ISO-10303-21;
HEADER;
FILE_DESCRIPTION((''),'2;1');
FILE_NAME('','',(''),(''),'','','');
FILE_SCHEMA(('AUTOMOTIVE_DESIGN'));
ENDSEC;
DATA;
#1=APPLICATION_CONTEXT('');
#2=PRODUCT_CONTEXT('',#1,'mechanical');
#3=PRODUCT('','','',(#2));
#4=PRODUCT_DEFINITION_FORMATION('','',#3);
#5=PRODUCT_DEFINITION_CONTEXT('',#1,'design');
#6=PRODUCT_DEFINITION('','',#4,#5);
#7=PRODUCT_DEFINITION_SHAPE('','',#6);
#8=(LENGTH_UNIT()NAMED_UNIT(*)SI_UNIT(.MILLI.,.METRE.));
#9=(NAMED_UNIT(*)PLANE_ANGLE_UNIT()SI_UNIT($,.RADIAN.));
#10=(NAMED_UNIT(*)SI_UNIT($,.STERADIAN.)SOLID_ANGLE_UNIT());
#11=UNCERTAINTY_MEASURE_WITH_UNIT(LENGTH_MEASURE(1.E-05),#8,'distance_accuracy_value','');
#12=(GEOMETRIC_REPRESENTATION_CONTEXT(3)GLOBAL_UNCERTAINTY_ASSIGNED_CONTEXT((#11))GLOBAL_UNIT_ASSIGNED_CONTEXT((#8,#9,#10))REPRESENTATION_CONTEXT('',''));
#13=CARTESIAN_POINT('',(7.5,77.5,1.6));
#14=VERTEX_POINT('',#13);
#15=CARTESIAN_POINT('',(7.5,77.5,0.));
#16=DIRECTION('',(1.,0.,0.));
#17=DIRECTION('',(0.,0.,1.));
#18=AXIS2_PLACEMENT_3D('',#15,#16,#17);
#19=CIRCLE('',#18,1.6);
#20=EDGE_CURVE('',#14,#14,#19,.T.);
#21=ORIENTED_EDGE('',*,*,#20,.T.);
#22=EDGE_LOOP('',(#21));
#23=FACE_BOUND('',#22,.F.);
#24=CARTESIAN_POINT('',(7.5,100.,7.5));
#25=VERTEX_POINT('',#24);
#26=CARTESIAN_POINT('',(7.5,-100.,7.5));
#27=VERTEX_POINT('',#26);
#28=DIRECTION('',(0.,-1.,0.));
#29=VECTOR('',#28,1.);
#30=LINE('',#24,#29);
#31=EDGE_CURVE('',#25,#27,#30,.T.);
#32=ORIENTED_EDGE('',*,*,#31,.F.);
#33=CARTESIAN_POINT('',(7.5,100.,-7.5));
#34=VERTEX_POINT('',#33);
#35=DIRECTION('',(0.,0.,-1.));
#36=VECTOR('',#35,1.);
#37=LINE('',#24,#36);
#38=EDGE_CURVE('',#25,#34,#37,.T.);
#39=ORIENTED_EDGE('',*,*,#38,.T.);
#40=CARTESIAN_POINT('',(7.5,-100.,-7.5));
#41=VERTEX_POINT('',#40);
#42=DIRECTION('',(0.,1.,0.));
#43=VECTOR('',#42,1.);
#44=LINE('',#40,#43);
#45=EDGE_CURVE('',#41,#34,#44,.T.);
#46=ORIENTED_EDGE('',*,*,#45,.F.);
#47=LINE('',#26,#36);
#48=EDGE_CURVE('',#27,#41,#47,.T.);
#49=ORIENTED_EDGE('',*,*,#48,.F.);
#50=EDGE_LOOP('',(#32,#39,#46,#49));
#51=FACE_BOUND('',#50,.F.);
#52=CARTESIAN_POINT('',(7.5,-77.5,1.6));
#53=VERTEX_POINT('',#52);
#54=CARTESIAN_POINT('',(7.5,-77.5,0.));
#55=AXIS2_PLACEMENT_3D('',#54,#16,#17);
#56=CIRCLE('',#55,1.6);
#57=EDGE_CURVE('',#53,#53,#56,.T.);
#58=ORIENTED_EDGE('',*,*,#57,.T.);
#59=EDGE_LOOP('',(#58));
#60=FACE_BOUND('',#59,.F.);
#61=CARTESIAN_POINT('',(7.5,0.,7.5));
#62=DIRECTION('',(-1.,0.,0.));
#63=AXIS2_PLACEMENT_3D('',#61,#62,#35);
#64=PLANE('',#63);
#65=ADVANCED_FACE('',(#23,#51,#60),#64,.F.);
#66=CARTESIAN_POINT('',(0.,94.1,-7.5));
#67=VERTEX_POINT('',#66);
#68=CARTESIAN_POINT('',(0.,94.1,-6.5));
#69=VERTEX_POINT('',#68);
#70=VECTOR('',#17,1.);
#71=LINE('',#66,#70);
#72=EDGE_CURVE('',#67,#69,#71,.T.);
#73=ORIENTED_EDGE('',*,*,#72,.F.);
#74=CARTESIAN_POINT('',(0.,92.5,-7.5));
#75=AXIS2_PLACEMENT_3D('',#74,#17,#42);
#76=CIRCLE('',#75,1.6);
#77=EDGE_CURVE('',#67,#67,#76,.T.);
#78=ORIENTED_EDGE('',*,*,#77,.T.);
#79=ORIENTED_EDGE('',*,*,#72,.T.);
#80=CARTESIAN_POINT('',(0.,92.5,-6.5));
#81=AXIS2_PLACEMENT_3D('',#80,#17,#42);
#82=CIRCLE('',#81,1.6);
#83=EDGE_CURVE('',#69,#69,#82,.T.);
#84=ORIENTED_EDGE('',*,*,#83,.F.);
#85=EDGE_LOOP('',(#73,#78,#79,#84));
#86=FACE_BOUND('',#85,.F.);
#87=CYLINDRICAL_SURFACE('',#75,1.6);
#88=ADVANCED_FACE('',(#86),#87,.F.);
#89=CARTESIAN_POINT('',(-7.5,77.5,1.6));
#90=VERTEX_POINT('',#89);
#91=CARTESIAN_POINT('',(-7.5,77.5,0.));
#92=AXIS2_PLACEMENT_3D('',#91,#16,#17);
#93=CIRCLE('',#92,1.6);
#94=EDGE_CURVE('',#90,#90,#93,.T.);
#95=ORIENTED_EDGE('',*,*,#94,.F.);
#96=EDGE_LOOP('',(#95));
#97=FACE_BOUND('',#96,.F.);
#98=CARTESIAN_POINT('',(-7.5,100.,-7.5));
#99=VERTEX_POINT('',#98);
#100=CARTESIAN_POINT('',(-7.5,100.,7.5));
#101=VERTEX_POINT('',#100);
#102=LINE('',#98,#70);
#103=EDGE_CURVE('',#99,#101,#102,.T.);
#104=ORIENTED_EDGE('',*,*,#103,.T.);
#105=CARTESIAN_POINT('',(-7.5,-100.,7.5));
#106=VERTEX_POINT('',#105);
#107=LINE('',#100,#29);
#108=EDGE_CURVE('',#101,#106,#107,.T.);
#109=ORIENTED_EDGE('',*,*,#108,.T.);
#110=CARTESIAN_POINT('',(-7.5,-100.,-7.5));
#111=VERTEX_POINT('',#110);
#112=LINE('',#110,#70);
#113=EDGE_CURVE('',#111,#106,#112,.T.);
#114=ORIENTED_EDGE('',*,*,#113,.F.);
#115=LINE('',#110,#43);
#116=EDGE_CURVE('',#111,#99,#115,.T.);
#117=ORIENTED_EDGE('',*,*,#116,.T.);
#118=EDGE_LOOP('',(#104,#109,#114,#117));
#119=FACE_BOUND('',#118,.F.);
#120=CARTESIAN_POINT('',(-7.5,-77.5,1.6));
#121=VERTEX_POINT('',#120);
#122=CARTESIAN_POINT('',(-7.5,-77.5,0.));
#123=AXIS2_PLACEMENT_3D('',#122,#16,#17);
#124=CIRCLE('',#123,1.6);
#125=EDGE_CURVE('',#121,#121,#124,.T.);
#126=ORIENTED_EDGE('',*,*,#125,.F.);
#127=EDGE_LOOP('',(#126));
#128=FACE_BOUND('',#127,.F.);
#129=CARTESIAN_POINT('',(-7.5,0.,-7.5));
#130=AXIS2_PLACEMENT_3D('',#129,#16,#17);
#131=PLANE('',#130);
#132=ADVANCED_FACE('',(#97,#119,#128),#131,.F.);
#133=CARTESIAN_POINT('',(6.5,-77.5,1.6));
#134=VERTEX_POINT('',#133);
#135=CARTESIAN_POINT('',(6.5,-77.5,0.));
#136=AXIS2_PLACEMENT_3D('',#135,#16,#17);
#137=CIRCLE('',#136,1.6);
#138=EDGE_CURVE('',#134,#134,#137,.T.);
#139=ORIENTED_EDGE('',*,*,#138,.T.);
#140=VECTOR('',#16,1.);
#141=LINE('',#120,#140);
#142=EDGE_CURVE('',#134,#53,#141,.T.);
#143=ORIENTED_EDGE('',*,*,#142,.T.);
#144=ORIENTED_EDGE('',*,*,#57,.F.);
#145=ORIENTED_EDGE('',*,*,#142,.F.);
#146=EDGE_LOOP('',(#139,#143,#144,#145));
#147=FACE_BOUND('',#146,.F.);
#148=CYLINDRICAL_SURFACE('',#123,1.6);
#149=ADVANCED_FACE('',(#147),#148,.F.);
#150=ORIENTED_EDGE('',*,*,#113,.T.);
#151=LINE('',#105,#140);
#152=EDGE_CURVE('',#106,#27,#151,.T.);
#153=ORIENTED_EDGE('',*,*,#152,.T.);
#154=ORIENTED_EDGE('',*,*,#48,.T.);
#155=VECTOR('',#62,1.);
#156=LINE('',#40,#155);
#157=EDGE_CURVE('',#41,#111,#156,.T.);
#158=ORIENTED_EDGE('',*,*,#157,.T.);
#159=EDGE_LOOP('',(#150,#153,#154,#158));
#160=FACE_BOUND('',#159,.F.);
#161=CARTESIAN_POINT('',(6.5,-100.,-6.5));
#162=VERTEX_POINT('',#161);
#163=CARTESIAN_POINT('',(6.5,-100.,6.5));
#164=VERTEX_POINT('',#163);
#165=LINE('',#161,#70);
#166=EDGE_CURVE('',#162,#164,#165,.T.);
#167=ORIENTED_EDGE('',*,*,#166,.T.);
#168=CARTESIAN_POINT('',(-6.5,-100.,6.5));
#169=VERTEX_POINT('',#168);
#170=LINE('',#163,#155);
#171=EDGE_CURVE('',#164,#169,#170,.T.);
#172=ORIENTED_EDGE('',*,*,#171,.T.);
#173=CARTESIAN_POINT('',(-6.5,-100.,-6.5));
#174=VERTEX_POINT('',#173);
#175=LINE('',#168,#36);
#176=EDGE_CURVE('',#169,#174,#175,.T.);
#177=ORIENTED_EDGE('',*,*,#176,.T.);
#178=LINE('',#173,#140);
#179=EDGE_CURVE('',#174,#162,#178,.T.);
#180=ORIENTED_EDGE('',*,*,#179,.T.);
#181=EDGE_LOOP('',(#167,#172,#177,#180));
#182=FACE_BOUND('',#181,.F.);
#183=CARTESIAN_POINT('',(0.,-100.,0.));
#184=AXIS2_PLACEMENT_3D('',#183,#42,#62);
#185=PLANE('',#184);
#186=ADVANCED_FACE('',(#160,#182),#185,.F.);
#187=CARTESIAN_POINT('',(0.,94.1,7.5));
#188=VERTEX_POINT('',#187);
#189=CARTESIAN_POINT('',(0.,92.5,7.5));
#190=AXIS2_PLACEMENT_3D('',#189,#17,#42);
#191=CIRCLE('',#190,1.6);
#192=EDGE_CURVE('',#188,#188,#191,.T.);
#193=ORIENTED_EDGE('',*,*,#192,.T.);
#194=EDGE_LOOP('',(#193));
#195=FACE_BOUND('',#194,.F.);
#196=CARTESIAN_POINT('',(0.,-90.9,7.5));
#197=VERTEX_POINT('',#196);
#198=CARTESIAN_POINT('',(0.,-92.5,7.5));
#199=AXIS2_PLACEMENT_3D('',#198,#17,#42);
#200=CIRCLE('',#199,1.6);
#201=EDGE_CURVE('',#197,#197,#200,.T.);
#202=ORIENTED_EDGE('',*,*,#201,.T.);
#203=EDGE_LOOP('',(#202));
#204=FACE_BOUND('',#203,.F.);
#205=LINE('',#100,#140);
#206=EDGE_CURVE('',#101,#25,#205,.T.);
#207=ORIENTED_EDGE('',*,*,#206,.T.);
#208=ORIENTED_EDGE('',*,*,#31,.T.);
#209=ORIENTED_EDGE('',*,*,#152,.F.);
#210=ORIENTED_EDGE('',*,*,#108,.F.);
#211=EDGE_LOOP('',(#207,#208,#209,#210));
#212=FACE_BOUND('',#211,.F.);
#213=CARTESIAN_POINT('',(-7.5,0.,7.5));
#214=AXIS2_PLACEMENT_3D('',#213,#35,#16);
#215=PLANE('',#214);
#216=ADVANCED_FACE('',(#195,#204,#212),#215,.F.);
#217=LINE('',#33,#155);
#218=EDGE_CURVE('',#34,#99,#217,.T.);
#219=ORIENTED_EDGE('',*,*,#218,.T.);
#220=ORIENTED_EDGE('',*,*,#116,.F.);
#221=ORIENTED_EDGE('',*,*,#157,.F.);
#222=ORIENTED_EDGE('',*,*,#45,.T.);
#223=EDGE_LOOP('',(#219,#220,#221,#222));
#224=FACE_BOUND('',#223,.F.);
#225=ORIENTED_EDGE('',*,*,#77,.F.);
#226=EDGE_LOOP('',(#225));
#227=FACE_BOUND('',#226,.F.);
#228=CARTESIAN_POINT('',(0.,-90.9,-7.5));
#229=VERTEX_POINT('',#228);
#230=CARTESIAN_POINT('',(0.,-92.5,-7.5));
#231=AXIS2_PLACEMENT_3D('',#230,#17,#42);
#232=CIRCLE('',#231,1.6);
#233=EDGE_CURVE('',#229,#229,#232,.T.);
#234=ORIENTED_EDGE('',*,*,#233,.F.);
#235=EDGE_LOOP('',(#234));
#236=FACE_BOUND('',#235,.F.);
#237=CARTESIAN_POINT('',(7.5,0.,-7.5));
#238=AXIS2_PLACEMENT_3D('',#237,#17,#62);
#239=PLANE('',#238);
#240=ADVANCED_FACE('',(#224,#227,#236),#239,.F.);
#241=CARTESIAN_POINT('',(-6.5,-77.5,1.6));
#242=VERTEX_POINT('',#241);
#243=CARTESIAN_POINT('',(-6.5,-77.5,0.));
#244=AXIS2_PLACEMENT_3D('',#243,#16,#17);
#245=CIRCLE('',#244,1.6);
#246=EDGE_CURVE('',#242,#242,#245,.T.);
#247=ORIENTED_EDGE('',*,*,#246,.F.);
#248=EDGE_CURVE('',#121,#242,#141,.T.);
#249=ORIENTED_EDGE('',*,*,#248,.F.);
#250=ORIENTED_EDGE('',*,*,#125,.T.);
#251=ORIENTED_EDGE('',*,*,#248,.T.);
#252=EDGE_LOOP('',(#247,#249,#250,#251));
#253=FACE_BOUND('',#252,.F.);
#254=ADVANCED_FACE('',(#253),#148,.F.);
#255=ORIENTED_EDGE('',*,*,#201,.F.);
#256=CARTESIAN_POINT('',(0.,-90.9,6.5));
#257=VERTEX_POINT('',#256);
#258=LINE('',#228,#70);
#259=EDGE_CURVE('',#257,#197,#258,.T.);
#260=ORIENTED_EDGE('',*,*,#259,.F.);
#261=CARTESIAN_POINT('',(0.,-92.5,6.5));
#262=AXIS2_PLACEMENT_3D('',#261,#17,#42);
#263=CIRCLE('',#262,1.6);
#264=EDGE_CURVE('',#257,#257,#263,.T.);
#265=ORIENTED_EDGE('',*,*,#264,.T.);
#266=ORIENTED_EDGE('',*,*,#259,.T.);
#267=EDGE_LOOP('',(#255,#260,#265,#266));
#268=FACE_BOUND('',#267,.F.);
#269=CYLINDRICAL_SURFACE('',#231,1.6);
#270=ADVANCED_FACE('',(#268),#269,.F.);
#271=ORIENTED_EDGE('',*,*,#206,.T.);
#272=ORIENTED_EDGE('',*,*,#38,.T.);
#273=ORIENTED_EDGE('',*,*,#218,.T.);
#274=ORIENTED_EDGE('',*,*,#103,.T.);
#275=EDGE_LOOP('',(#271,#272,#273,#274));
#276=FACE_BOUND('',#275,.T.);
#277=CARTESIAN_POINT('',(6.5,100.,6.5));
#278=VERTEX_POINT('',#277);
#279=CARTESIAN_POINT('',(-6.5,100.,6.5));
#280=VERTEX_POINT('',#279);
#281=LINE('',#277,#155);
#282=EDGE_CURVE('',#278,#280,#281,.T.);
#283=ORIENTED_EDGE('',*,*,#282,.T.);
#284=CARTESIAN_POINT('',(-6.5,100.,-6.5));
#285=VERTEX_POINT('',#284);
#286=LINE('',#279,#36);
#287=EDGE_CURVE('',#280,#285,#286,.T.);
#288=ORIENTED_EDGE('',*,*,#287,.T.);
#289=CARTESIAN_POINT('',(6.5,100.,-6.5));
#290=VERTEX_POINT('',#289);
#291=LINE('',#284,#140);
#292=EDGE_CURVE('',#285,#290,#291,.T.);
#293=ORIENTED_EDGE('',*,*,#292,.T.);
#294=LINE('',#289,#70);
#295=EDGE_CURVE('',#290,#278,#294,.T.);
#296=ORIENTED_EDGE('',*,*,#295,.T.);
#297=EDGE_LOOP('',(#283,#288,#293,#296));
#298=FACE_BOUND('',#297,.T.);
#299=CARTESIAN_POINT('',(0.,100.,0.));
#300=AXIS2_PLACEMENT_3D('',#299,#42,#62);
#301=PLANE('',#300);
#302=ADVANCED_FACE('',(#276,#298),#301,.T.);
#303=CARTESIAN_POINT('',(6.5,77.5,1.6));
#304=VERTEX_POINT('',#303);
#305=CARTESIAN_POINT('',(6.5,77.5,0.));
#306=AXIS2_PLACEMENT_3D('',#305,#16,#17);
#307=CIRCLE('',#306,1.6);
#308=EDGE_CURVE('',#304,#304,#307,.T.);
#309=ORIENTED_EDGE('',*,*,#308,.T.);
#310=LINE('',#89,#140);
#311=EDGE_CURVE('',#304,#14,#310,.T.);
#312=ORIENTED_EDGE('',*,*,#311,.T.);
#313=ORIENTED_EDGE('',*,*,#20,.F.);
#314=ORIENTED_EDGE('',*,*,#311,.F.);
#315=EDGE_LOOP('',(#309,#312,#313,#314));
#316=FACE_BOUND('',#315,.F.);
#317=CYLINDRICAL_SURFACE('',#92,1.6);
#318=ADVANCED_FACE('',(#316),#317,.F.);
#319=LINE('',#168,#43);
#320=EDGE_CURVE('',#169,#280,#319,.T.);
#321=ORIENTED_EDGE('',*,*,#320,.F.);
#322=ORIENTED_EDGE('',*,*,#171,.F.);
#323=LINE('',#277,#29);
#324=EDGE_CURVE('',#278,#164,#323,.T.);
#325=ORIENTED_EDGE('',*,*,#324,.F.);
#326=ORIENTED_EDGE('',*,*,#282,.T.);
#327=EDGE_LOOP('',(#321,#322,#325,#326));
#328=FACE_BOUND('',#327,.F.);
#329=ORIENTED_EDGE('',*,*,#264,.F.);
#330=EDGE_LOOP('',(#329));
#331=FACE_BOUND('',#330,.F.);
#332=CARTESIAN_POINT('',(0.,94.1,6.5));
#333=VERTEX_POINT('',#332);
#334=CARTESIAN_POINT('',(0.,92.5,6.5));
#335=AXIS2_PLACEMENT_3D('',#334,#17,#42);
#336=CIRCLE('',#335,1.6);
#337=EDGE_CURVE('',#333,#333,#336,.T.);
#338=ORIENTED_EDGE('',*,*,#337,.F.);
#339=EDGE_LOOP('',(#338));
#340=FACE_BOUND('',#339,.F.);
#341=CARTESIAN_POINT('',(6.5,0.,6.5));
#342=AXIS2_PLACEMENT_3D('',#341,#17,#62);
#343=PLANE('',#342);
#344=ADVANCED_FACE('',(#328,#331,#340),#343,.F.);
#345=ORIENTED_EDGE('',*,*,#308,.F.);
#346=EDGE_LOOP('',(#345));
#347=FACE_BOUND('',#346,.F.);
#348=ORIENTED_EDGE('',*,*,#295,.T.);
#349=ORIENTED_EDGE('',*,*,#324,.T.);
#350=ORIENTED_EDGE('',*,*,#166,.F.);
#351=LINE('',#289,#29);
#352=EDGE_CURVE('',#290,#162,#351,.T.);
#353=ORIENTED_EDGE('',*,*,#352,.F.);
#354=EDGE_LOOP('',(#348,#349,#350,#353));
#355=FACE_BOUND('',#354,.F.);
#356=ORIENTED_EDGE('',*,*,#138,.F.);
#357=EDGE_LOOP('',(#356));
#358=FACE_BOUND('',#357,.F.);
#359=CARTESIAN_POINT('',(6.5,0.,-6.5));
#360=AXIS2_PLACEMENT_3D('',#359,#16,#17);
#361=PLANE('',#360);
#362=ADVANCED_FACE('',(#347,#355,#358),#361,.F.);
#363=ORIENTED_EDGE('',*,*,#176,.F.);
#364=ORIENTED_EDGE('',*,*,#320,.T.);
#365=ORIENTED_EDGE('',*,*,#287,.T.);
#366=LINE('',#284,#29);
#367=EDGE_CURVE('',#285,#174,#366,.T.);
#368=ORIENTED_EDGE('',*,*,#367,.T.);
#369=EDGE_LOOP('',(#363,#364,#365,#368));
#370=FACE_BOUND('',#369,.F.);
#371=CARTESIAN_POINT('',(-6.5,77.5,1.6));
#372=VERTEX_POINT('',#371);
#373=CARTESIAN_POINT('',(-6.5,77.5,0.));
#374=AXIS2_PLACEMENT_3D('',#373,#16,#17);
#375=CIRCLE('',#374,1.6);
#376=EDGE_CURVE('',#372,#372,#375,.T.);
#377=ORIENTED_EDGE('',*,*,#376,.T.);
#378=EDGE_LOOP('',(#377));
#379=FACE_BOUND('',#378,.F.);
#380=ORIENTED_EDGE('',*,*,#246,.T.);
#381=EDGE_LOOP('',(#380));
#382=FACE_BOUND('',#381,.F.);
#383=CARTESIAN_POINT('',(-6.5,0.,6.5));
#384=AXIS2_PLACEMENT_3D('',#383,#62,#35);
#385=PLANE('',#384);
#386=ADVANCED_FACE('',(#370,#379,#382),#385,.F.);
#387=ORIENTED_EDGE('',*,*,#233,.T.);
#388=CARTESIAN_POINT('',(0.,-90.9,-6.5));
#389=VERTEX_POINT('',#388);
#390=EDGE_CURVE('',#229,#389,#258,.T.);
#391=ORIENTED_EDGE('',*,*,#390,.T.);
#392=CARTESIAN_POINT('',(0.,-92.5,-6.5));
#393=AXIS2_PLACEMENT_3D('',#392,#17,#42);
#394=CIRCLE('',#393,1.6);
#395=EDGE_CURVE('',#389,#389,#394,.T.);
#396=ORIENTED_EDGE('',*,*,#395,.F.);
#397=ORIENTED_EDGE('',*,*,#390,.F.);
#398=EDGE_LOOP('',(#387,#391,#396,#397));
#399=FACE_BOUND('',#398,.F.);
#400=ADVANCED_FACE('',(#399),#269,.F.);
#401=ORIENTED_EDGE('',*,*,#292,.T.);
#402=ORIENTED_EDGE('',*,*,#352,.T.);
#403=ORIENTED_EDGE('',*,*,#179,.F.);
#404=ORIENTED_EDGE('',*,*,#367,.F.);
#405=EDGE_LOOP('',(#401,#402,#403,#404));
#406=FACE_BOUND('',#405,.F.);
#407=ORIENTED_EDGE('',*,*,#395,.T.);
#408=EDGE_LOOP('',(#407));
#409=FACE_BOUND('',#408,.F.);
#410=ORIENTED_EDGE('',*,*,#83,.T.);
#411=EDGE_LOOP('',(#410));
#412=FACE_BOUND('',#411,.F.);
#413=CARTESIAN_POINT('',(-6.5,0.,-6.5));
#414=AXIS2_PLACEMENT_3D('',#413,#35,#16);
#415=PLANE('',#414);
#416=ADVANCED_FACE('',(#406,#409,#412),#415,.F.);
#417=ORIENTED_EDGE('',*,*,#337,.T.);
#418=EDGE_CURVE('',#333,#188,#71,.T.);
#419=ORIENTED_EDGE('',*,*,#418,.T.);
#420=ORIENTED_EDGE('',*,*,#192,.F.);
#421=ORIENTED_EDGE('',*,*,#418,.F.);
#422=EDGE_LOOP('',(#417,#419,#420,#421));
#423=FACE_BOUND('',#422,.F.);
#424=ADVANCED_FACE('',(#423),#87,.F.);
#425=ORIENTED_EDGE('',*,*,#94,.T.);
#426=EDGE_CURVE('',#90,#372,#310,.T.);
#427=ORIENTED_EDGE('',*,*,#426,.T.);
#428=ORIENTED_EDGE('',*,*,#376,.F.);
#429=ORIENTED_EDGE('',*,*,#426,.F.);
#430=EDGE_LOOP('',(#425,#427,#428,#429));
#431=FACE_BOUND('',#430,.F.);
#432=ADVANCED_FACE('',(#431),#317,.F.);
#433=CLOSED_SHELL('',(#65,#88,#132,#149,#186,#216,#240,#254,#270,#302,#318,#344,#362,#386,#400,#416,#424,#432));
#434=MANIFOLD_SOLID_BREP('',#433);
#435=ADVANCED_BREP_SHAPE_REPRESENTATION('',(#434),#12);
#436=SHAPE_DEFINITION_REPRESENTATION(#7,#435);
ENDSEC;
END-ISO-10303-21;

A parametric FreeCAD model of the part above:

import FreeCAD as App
import Part
import Sketcher

V = App.Vector


def add_polygon(sketch, points):
    """Adds a closed chain of lines whose ends are joined by coincident constraints."""
    first, n = sketch.GeometryCount, len(points)
    for a, b in zip(points, points[1:] + points[:1]):
        sketch.addGeometry(Part.LineSegment(App.Vector(*a, 0), App.Vector(*b, 0)), False)
    for i in range(n):
        sketch.addConstraint(Sketcher.Constraint("Coincident", first + i, 2, first + (i + 1) % n, 1))

doc = App.newDocument("Part")
body = doc.addObject("PartDesign::Body", "Body")

sketch1 = body.newObject("Sketcher::SketchObject", "Sketch")
sketch1.AttachmentSupport = (doc.getObject("XZ_Plane"), [""])
sketch1.MapMode = "FlatFace"
add_polygon(sketch1, [(7.5, 7.5), (7.5, -7.5), (-7.5, -7.5), (-7.5, 7.5)])
add_polygon(sketch1, [(6.5, 6.5), (-6.5, 6.5), (-6.5, -6.5), (6.5, -6.5)])
sketch1.addConstraint(Sketcher.Constraint("Vertical", 0))
sketch1.addConstraint(Sketcher.Constraint("Horizontal", 1))
sketch1.addConstraint(Sketcher.Constraint("Vertical", 2))
sketch1.addConstraint(Sketcher.Constraint("Horizontal", 3))
sketch1.addConstraint(Sketcher.Constraint("Horizontal", 4))
sketch1.addConstraint(Sketcher.Constraint("Vertical", 5))
sketch1.addConstraint(Sketcher.Constraint("Horizontal", 6))
sketch1.addConstraint(Sketcher.Constraint("Vertical", 7))
sketch1.addConstraint(Sketcher.Constraint("Symmetric", 0, 2, 2, 2, -1, 1))
sketch1.addConstraint(Sketcher.Constraint("Symmetric", 4, 2, 6, 2, -1, 1))
sketch1.addConstraint(Sketcher.Constraint("Equal", 3, 0))
sketch1.addConstraint(Sketcher.Constraint("Equal", 6, 5))
sketch1.addConstraint(Sketcher.Constraint("DistanceX", 1, 2, 1, 1, 15.0))
sketch1.addConstraint(Sketcher.Constraint("DistanceX", 4, 2, 4, 1, 13.0))
pad1 = body.newObject("PartDesign::Pad", "Pad")
pad1.Profile = sketch1
pad1.Length = 200
pad1.Midplane = True

sketch2 = body.newObject("Sketcher::SketchObject", "Sketch001")
sketch2.AttachmentSupport = (doc.getObject("YZ_Plane"), [""])
sketch2.MapMode = "FlatFace"
sketch2.AttachmentOffset = App.Placement(V(0, 0, -7.5), App.Rotation())
sketch2.addGeometry(Part.Circle(V(77.5, 0, 0), V(0, 0, 1), 1.6), False)
sketch2.addGeometry(Part.Circle(V(-77.5, 0, 0), V(0, 0, 1), 1.6), False)
sketch2.addConstraint(Sketcher.Constraint("Equal", 0, 1))
sketch2.addConstraint(Sketcher.Constraint("Symmetric", 0, 3, 1, 3, -1, 1))
sketch2.addConstraint(Sketcher.Constraint("PointOnObject", 0, 3, -1))
sketch2.addConstraint(Sketcher.Constraint("Diameter", 0, 3.2))
sketch2.addConstraint(Sketcher.Constraint("DistanceX", 1, 3, 0, 3, 155.0))
doc.recompute()
hole = body.newObject("PartDesign::Hole", "Hole")
hole.Profile = sketch2
hole.ThreadType = "None"
hole.Diameter = 3.2
hole.DepthType = "ThroughAll"
hole.Reversed = True

sketch3 = body.newObject("Sketcher::SketchObject", "Sketch002")
sketch3.AttachmentSupport = (doc.getObject("XY_Plane"), [""])
sketch3.MapMode = "FlatFace"
sketch3.AttachmentOffset = App.Placement(V(0, 0, -7.5), App.Rotation())
sketch3.addGeometry(Part.Circle(V(0, 92.5, 0), V(0, 0, 1), 1.6), False)
sketch3.addGeometry(Part.Circle(V(0, -92.5, 0), V(0, 0, 1), 1.6), False)
sketch3.addConstraint(Sketcher.Constraint("Equal", 0, 1))
sketch3.addConstraint(Sketcher.Constraint("Symmetric", 0, 3, 1, 3, -1, 1))
sketch3.addConstraint(Sketcher.Constraint("PointOnObject", 0, 3, -2))
sketch3.addConstraint(Sketcher.Constraint("Diameter", 0, 3.2))
sketch3.addConstraint(Sketcher.Constraint("DistanceY", 1, 3, 0, 3, 185.0))
doc.recompute()
hole2 = body.newObject("PartDesign::Hole", "Hole001")
hole2.Profile = sketch3
hole2.ThreadType = "None"
hole2.Diameter = 3.2
hole2.DepthType = "ThroughAll"
hole2.Reversed = True

doc.recompute()
